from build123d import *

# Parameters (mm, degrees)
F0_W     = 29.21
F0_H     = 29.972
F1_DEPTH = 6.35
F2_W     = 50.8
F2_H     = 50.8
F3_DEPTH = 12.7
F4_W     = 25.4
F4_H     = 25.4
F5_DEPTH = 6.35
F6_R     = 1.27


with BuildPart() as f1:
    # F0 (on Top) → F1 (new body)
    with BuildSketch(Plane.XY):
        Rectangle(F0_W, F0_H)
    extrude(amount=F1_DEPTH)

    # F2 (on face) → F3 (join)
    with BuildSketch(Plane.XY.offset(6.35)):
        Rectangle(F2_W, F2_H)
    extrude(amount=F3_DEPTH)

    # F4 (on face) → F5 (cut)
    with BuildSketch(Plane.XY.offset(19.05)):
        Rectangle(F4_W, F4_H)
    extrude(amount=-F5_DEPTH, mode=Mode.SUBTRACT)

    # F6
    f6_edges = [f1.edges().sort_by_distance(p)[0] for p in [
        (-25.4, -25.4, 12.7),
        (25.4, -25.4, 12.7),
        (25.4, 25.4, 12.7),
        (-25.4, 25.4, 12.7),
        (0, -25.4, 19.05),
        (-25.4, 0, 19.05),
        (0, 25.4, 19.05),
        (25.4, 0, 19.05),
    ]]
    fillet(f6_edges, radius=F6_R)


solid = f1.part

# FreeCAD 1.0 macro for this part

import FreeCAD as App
import Part
import Sketcher

V = App.Vector
Q = App.Units.Quantity


def edges_at(feature, points):
    """Names of the edges that pass closest to the given points."""
    edges = feature.Shape.Edges
    near = lambda p: min(range(len(edges)), key=lambda i: edges[i].distToShape(Part.Vertex(*p))[0])
    return sorted({f"Edge{near(p) + 1}" for p in points})


def add_polygon(sketch, points):
    """Adds a closed chain of lines whose ends are joined by coincident constraints."""
    first, n = sketch.GeometryCount, len(points)
    for a, b in zip(points, points[1:] + points[:1]):
        sketch.addGeometry(Part.LineSegment(App.Vector(*a, 0), App.Vector(*b, 0)), False)
    for i in range(n):
        sketch.addConstraint(Sketcher.Constraint("Coincident", first + i, 2, first + (i + 1) % n, 1))

doc = App.newDocument("Part")
body = doc.addObject("PartDesign::Body", "Body")

sketch1 = body.newObject("Sketcher::SketchObject", "Sketch")
sketch1.AttachmentSupport = (doc.getObject("XY_Plane"), [""])
sketch1.MapMode = "FlatFace"
add_polygon(sketch1, [(-15, 15), (-15, -15), (15, -15), (15, 15)])
sketch1.addConstraint([
    Sketcher.Constraint("Vertical", 0),
    Sketcher.Constraint("Horizontal", 1),
    Sketcher.Constraint("Vertical", 2),
    Sketcher.Constraint("Horizontal", 3),
    Sketcher.Constraint("Symmetric", 0, 2, 2, 2, -1, 1),
    Sketcher.Constraint("DistanceX", 1, 1, 1, 2, Q("1.15 in")),
    Sketcher.Constraint("DistanceY", 0, 2, 0, 1, Q("1.18 in")),
])
pad1 = body.newObject("PartDesign::Pad", "Pad")
pad1.Profile = sketch1
pad1.Length = Q("0.25 in")

sketch2 = body.newObject("Sketcher::SketchObject", "Sketch001")
sketch2.AttachmentSupport = (doc.getObject("XY_Plane"), [""])
sketch2.MapMode = "FlatFace"
sketch2.AttachmentOffset = App.Placement(V(0, 0, 0.25 * 25.4), App.Rotation())
add_polygon(sketch2, [(-25, 25), (-25, -25), (25, -25), (25, 25)])
sketch2.addConstraint([
    Sketcher.Constraint("Vertical", 0),
    Sketcher.Constraint("Horizontal", 1),
    Sketcher.Constraint("Vertical", 2),
    Sketcher.Constraint("Horizontal", 3),
    Sketcher.Constraint("Symmetric", 0, 2, 2, 2, -1, 1),
    Sketcher.Constraint("Equal", 3, 0),
    Sketcher.Constraint("DistanceX", 1, 1, 1, 2, Q("2 in")),
])
pad2 = body.newObject("PartDesign::Pad", "Pad001")
pad2.Profile = sketch2
pad2.Length = Q("0.5 in")

sketch3 = body.newObject("Sketcher::SketchObject", "Sketch002")
sketch3.AttachmentSupport = (doc.getObject("XY_Plane"), [""])
sketch3.MapMode = "FlatFace"
sketch3.AttachmentOffset = App.Placement(V(0, 0, 0.75 * 25.4), App.Rotation())
add_polygon(sketch3, [(-13, 13), (-13, -13), (13, -13), (13, 13)])
sketch3.addConstraint([
    Sketcher.Constraint("Vertical", 0),
    Sketcher.Constraint("Horizontal", 1),
    Sketcher.Constraint("Vertical", 2),
    Sketcher.Constraint("Horizontal", 3),
    Sketcher.Constraint("Symmetric", 0, 2, 2, 2, -1, 1),
    Sketcher.Constraint("Equal", 3, 0),
    Sketcher.Constraint("DistanceX", 1, 1, 1, 2, Q("1 in")),
])
pocket1 = body.newObject("PartDesign::Pocket", "Pocket")
pocket1.Profile = sketch3
pocket1.Length = Q("0.25 in")
doc.recompute()

fillet = body.newObject("PartDesign::Fillet", "Fillet")
fillet.Base = (pocket1, edges_at(pocket1, [
    (-25.4, -25.4, 12.7),
    (25.4, -25.4, 12.7),
    (25.4, 25.4, 12.7),
    (-25.4, 25.4, 12.7),
    (0, -25.4, 19.05),
    (-25.4, 0, 19.05),
    (0, 25.4, 19.05),
    (25.4, 0, 19.05),
]))
fillet.Radius = Q("0.05 in")

doc.recompute()
